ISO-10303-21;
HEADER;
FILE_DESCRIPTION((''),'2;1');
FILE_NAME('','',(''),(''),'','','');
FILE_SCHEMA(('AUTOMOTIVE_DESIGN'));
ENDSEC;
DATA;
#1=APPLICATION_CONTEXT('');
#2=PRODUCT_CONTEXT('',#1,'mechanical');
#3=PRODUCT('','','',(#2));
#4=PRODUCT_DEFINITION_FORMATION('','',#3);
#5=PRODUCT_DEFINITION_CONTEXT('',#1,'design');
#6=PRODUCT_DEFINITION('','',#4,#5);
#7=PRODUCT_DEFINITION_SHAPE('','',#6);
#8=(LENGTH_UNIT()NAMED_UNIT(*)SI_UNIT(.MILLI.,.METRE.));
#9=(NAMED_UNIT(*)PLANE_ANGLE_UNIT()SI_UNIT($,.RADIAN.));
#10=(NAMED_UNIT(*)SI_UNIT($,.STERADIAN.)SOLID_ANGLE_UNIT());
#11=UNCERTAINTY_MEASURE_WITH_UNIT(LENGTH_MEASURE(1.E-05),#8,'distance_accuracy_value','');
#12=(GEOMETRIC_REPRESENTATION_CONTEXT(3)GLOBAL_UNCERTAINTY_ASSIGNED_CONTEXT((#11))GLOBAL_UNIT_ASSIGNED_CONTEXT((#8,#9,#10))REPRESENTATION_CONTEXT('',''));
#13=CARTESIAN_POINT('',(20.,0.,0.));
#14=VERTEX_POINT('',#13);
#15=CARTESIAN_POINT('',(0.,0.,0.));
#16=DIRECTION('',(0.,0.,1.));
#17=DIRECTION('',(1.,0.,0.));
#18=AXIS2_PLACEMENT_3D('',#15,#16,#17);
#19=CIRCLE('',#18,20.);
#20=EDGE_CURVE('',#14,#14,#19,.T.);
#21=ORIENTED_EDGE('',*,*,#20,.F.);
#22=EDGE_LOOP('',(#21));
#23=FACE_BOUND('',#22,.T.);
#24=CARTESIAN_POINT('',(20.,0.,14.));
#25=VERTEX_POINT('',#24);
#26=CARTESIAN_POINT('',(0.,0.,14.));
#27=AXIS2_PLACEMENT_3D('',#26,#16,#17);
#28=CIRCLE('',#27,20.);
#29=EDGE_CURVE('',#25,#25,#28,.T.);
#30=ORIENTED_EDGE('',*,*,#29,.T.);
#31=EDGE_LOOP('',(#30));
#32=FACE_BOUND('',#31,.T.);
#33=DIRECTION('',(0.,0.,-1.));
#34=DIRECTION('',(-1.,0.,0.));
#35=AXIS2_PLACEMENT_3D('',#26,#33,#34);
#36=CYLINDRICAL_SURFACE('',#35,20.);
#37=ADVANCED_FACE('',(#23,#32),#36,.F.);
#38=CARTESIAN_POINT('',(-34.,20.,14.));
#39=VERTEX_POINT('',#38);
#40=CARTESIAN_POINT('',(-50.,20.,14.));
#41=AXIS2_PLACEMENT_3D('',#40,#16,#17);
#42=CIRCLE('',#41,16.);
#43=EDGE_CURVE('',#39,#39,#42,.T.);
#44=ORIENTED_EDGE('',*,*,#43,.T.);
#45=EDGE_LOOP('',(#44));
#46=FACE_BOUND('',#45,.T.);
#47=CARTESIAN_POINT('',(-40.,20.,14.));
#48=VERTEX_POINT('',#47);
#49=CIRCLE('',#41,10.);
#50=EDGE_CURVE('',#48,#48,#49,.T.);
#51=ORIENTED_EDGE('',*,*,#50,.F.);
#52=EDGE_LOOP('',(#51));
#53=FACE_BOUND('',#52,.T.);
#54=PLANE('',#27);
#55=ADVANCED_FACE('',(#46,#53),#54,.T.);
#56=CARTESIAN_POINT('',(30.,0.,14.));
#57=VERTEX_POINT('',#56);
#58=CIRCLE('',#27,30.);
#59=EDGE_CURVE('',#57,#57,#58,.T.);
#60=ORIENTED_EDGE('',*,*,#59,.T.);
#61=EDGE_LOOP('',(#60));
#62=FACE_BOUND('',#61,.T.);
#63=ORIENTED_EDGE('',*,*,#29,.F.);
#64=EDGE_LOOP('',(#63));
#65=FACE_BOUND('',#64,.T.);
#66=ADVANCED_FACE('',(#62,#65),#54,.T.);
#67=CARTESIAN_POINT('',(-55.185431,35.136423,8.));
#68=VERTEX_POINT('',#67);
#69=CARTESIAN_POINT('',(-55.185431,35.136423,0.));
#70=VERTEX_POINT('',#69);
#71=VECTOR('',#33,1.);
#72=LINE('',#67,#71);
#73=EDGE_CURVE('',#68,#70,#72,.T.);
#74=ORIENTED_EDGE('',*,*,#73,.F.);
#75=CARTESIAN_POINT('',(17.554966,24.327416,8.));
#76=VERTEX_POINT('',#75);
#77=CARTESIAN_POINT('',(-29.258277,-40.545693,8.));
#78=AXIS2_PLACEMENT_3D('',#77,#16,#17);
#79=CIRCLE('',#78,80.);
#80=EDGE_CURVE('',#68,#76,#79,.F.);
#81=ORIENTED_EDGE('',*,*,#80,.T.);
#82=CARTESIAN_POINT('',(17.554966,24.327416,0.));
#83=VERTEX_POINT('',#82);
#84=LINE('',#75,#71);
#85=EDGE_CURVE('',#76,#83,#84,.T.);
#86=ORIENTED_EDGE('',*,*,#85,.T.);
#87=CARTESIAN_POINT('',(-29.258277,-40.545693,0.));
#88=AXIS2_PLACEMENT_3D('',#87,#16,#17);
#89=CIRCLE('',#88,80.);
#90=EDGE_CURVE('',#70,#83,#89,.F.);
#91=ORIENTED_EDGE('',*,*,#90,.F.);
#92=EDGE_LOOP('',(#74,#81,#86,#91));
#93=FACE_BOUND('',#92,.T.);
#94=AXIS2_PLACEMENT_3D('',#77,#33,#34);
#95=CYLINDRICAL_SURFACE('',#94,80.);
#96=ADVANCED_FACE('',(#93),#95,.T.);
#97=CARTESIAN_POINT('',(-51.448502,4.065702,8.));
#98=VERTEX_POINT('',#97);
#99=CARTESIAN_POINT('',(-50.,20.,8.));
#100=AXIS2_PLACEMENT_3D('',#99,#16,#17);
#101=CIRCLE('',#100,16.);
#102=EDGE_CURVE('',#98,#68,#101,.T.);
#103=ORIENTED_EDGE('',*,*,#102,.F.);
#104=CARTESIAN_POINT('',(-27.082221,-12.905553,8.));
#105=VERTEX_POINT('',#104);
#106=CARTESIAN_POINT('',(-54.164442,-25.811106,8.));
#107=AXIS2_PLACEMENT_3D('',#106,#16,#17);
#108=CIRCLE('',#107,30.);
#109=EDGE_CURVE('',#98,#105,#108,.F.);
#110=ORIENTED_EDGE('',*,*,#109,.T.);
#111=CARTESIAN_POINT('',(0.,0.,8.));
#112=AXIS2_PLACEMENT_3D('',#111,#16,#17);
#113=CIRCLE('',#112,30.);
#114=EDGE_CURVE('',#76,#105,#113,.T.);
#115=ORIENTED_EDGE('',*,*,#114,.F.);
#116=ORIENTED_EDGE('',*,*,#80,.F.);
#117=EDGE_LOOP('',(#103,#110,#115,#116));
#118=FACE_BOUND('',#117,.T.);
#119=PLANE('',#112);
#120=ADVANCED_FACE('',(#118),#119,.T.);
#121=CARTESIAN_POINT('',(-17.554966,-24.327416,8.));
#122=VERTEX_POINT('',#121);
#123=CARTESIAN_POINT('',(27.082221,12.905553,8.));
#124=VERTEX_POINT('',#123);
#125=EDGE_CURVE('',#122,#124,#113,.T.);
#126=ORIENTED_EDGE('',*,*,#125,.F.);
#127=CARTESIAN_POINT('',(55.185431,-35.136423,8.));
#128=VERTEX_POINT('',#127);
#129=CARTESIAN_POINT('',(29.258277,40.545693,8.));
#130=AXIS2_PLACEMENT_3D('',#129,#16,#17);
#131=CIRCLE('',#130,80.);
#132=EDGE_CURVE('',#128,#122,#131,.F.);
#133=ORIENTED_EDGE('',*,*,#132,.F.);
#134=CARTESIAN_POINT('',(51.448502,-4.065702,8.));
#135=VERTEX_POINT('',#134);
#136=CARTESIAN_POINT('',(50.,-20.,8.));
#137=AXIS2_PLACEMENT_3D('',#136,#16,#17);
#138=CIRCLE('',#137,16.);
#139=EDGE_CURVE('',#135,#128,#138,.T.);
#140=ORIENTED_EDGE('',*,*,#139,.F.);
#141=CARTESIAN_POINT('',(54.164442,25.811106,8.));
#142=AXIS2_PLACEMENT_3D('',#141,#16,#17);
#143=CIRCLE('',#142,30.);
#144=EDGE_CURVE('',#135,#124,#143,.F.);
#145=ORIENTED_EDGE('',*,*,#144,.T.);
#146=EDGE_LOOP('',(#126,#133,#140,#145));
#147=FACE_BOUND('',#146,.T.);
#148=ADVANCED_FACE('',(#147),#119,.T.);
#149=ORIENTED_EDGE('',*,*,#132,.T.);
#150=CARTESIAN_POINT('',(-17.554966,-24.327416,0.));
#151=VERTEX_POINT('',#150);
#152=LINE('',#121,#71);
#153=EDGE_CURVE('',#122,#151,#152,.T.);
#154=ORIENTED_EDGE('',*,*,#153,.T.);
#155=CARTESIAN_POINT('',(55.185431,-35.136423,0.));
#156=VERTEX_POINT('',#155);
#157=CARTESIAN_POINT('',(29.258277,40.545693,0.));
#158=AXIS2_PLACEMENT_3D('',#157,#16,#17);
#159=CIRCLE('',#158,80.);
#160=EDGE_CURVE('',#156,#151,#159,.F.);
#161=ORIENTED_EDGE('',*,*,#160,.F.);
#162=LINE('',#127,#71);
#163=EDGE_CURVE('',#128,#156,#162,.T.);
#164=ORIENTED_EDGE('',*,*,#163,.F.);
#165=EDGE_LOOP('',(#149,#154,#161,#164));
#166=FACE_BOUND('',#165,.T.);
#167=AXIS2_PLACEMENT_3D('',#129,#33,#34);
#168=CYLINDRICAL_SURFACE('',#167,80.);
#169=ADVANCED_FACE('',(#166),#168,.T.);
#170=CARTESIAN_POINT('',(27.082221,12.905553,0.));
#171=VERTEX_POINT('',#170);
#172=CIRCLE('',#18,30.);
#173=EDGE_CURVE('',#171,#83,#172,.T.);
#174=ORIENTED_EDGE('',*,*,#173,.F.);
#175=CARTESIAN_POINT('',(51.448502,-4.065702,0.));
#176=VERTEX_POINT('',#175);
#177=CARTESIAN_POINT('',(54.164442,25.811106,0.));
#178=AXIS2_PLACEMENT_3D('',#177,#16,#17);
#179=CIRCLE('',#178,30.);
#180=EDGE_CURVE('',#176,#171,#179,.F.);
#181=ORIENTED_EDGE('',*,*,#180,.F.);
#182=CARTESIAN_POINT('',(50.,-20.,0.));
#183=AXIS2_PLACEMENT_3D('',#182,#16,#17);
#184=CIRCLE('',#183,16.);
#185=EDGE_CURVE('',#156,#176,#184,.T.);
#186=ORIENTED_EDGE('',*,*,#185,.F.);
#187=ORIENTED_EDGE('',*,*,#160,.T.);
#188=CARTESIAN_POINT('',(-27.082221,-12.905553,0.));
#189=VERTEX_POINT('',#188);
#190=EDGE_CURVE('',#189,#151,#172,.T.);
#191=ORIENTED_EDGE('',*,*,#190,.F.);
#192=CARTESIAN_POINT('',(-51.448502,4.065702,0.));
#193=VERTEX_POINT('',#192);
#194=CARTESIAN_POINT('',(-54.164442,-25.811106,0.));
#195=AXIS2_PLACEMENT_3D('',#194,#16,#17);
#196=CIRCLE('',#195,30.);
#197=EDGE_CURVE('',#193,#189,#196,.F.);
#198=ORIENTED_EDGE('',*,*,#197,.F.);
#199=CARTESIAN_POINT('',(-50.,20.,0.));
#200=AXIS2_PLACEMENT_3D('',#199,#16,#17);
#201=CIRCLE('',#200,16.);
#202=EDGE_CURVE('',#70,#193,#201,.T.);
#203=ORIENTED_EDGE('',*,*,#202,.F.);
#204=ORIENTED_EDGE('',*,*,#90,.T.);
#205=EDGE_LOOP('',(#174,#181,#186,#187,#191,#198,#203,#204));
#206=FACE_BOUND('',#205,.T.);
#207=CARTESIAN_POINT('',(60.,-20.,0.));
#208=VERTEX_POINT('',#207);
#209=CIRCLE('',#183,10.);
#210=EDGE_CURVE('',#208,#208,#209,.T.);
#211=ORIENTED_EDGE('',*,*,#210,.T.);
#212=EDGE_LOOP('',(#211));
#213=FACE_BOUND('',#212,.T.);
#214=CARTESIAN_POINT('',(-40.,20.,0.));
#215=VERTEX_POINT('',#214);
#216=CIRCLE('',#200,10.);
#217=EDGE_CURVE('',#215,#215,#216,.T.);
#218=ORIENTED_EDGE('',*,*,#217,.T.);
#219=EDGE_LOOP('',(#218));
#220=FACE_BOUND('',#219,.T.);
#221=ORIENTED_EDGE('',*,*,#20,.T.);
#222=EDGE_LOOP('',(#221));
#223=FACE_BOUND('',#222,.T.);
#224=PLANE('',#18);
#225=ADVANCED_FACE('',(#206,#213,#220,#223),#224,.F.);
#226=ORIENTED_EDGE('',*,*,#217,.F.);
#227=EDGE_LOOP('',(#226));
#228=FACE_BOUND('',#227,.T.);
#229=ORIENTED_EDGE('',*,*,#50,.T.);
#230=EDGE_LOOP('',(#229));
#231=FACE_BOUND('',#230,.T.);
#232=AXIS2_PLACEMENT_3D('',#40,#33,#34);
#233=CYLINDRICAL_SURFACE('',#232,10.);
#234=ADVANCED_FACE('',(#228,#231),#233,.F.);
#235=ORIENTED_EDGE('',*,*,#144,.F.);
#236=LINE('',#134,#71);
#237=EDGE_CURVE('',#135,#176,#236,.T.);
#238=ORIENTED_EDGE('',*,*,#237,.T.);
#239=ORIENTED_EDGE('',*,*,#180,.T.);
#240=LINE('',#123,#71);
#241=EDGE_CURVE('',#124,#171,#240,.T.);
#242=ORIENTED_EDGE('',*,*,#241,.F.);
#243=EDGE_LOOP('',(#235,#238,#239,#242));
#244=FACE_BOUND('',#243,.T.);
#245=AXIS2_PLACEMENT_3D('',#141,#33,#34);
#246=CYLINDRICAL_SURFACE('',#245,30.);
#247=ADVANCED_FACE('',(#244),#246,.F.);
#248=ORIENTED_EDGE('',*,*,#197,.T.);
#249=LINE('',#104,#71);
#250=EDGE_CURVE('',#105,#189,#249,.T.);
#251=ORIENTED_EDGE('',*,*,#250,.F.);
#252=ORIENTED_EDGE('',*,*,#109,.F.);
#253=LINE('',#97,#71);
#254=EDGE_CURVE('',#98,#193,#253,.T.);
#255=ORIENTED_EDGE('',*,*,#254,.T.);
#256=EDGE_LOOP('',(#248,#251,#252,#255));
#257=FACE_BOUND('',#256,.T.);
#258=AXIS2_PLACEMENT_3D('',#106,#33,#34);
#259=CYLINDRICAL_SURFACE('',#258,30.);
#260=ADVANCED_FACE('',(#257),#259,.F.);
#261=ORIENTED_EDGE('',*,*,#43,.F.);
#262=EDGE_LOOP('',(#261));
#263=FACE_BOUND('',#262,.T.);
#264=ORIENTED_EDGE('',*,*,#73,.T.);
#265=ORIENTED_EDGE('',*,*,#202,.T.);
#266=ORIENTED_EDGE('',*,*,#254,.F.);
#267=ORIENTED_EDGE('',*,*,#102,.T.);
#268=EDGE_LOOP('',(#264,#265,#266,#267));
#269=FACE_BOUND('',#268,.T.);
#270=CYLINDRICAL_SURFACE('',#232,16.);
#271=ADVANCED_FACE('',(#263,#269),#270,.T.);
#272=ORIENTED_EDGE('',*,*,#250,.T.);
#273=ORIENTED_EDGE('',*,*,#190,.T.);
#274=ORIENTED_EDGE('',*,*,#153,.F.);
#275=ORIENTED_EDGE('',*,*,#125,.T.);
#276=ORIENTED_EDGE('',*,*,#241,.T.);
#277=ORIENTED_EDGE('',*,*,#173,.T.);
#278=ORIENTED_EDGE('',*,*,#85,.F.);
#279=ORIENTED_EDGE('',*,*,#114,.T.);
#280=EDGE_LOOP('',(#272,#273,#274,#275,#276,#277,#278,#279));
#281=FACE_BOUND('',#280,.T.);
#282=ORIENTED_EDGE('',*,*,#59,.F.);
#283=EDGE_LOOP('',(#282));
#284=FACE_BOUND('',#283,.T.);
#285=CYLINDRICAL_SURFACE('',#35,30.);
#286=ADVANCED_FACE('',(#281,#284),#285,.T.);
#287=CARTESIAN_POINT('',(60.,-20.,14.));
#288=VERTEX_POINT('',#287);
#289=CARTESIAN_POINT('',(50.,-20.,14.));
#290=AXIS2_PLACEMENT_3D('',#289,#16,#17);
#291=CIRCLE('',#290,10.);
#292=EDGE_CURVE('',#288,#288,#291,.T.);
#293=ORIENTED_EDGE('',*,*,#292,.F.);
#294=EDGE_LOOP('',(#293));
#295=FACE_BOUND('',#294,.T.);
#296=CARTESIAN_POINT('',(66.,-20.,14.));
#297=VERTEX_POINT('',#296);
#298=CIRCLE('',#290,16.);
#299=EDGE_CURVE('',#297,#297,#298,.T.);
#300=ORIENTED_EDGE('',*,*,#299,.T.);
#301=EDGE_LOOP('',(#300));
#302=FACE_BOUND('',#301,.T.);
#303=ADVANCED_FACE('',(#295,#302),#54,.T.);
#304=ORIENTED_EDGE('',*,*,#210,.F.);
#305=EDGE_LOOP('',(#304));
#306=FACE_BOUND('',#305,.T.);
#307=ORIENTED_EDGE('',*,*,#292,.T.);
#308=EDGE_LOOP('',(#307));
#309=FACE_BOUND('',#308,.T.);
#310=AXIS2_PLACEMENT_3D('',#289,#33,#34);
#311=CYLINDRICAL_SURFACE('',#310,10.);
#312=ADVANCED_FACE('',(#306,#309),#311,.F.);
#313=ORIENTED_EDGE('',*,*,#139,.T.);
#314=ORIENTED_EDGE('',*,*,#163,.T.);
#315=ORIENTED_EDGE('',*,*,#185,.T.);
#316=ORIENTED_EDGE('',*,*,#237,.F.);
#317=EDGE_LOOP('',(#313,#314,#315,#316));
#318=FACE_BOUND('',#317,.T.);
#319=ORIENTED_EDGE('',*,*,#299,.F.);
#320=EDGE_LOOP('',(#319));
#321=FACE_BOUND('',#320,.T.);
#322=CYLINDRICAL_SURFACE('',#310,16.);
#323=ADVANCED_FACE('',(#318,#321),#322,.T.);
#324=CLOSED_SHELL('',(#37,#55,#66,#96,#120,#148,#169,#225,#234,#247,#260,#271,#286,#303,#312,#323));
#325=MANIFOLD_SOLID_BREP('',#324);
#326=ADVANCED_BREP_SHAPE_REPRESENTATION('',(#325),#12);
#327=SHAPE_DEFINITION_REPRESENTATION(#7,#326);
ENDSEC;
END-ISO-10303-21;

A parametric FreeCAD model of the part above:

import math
import FreeCAD as App
import Part
import Sketcher

doc = App.newDocument("Part")
params = doc.addObject("Spreadsheet::Sheet", "Params")
for row, (alias, value) in enumerate([
    ("sketch1_diameter", "32 mm"),
    ("sketch1_diameter2", "20 mm"),
    ("pad1_length", "14 mm"),
    ("sketch2_diameter", "60 mm"),
    ("sketch2_diameter2", "40 mm"),
    ("pad2_length", "14 mm"),
    ("sketch3_diameter", "32 mm"),
    ("sketch3_diameter2", "20 mm"),
    ("pad3_length", "14 mm"),
    ("sketch4_radius", "30 mm"),
    ("sketch4_radius2", "80 mm"),
    ("sketch4_radius3", "16 mm"),
    ("pad4_length", "8 mm"),
], start=1):
    params.set(f"A{row}", alias)
    params.set(f"B{row}", "=" + value)
    params.setAlias(f"B{row}", alias)

body = doc.addObject("PartDesign::Body", "Body")

# Sketch on XY plane
sketch1 = body.newObject("Sketcher::SketchObject", "Sketch")
sketch1.AttachmentSupport = (doc.getObject("XY_Plane"), [""])
sketch1.MapMode = "FlatFace"
sketch1.addGeometry(Part.Circle(App.Vector(-50, 20, 0), App.Vector(0, 0, 1), 16), False)
sketch1.addGeometry(Part.Circle(App.Vector(-50, 20, 0), App.Vector(0, 0, 1), 10), False)
sketch1.addConstraint(Sketcher.Constraint("Coincident", 1, 3, 0, 3))
sketch1.addConstraint(Sketcher.Constraint("Diameter", 0, 32.0))
sketch1.addConstraint(Sketcher.Constraint("Diameter", 1, 20.0))
sketch1.addConstraint(Sketcher.Constraint("DistanceX", 0, 3, -1, 1, 50.0))
sketch1.addConstraint(Sketcher.Constraint("DistanceY", -1, 1, 0, 3, 20.0))
sketch1.setExpression("Constraints[1]", "Params.sketch1_diameter")
sketch1.setExpression("Constraints[2]", "Params.sketch1_diameter2")
pad1 = body.newObject("PartDesign::Pad", "Pad")
pad1.Profile = sketch1
pad1.setExpression("Length", "Params.pad1_length")
body2 = doc.addObject("PartDesign::Body", "Body001")

# Sketch on XY plane
sketch2 = body2.newObject("Sketcher::SketchObject", "Sketch001")
sketch2.AttachmentSupport = (doc.getObject("XY_Plane001"), [""])
sketch2.MapMode = "FlatFace"
sketch2.addGeometry(Part.Circle(App.Vector(0, 0, 0), App.Vector(0, 0, 1), 30), False)
sketch2.addGeometry(Part.Circle(App.Vector(0, 0, 0), App.Vector(0, 0, 1), 20), False)
sketch2.addConstraint(Sketcher.Constraint("Coincident", 0, 3, -1, 1))
sketch2.addConstraint(Sketcher.Constraint("Coincident", 1, 3, -1, 1))
sketch2.addConstraint(Sketcher.Constraint("Diameter", 0, 60.0))
sketch2.addConstraint(Sketcher.Constraint("Diameter", 1, 40.0))
sketch2.setExpression("Constraints[2]", "Params.sketch2_diameter")
sketch2.setExpression("Constraints[3]", "Params.sketch2_diameter2")
pad2 = body2.newObject("PartDesign::Pad", "Pad001")
pad2.Profile = sketch2
pad2.setExpression("Length", "Params.pad2_length")
body3 = doc.addObject("PartDesign::Body", "Body002")

# Sketch on XY plane
sketch3 = body3.newObject("Sketcher::SketchObject", "Sketch002")
sketch3.AttachmentSupport = (doc.getObject("XY_Plane002"), [""])
sketch3.MapMode = "FlatFace"
sketch3.addGeometry(Part.Circle(App.Vector(50, -20, 0), App.Vector(0, 0, 1), 16), False)
sketch3.addGeometry(Part.Circle(App.Vector(50, -20, 0), App.Vector(0, 0, 1), 10), False)
sketch3.addConstraint(Sketcher.Constraint("Coincident", 1, 3, 0, 3))
sketch3.addConstraint(Sketcher.Constraint("Diameter", 0, 32.0))
sketch3.addConstraint(Sketcher.Constraint("Diameter", 1, 20.0))
sketch3.addConstraint(Sketcher.Constraint("DistanceX", -1, 1, 0, 3, 50.0))
sketch3.addConstraint(Sketcher.Constraint("DistanceY", 0, 3, -1, 1, 20.0))
sketch3.setExpression("Constraints[1]", "Params.sketch3_diameter")
sketch3.setExpression("Constraints[2]", "Params.sketch3_diameter2")
pad3 = body3.newObject("PartDesign::Pad", "Pad002")
pad3.Profile = sketch3
pad3.setExpression("Length", "Params.pad3_length")
body.AllowCompound = True
doc.recompute()

boolean = body.newObject("PartDesign::Boolean", "Boolean")
boolean.Type = "Fuse"
boolean.addObjects([body2])
doc.recompute()

boolean2 = body.newObject("PartDesign::Boolean", "Boolean001")
boolean2.Type = "Fuse"
boolean2.addObjects([body3])

# Sketch on XY plane
sketch4 = body.newObject("Sketcher::SketchObject", "Sketch003")
sketch4.AttachmentSupport = (doc.getObject("XY_Plane"), [""])
sketch4.MapMode = "FlatFace"
sketch4.addGeometry(Part.ArcOfCircle(Part.Circle(App.Vector(0, 0, 0), App.Vector(0, 0, 1), 30), math.radians(54.185314), math.radians(205.479307)), False)
sketch4.addGeometry(Part.ArcOfCircle(Part.Circle(App.Vector(-29.258277, -40.545693, 0), App.Vector(0, 0, 1), 80), math.radians(54.185314), math.radians(108.910417)), False)
sketch4.addGeometry(Part.ArcOfCircle(Part.Circle(App.Vector(-50, 20, 0), App.Vector(0, 0, 1), 16), math.radians(0), math.radians(108.910417)), False)
sketch4.addGeometry(Part.ArcOfCircle(Part.Circle(App.Vector(-50, 20, 0), App.Vector(0, 0, 1), 16), math.radians(-95.194176), math.radians(0)), False)
sketch4.addGeometry(Part.ArcOfCircle(Part.Circle(App.Vector(-54.164442, -25.811106, 0), App.Vector(0, 0, 1), 30), math.radians(25.479307), math.radians(84.805824)), False)
sketch4.addGeometry(Part.ArcOfCircle(Part.Circle(App.Vector(0, 0, 0), App.Vector(0, 0, 1), 30), math.radians(0), math.radians(25.479307)), False)
sketch4.addGeometry(Part.ArcOfCircle(Part.Circle(App.Vector(0, 0, 0), App.Vector(0, 0, 1), 30), math.radians(-125.814686), math.radians(0)), False)
sketch4.addGeometry(Part.ArcOfCircle(Part.Circle(App.Vector(29.258277, 40.545693, 0), App.Vector(0, 0, 1), 80), math.radians(-125.814686), math.radians(-71.089583)), False)
sketch4.addGeometry(Part.ArcOfCircle(Part.Circle(App.Vector(50, -20, 0), App.Vector(0, 0, 1), 16), math.radians(84.805824), math.radians(288.910417)), False)
sketch4.addGeometry(Part.ArcOfCircle(Part.Circle(App.Vector(54.164442, 25.811106, 0), App.Vector(0, 0, 1), 30), math.radians(-154.520693), math.radians(-95.194176)), False)
sketch4.addConstraint(Sketcher.Constraint("Tangent", 0, 1, 1, 1))
sketch4.addConstraint(Sketcher.Constraint("Tangent", 1, 2, 2, 2))
sketch4.addConstraint(Sketcher.Constraint("Tangent", 2, 1, 3, 2))
sketch4.addConstraint(Sketcher.Constraint("Tangent", 3, 1, 4, 2))
sketch4.addConstraint(Sketcher.Constraint("Tangent", 4, 1, 0, 2))
sketch4.addConstraint(Sketcher.Constraint("Tangent", 5, 1, 6, 2))
sketch4.addConstraint(Sketcher.Constraint("Tangent", 6, 1, 7, 1))
sketch4.addConstraint(Sketcher.Constraint("Tangent", 7, 2, 8, 2))
sketch4.addConstraint(Sketcher.Constraint("Tangent", 8, 1, 9, 2))
sketch4.addConstraint(Sketcher.Constraint("Tangent", 9, 1, 5, 2))
sketch4.addConstraint(Sketcher.Constraint("Coincident", 0, 3, -1, 1))
sketch4.addConstraint(Sketcher.Constraint("Coincident", 5, 3, -1, 1))
sketch4.addConstraint(Sketcher.Constraint("Equal", 2, 3))
sketch4.addConstraint(Sketcher.Constraint("Equal", 0, 4))
sketch4.addConstraint(Sketcher.Constraint("Equal", 4, 5))
sketch4.addConstraint(Sketcher.Constraint("Equal", 5, 6))
sketch4.addConstraint(Sketcher.Constraint("Equal", 1, 7))
sketch4.addConstraint(Sketcher.Constraint("Equal", 3, 8))
sketch4.addConstraint(Sketcher.Constraint("Equal", 6, 9))
sketch4.addConstraint(Sketcher.Constraint("Symmetric", 2, 3, 8, 3, -1, 1))
sketch4.addConstraint(Sketcher.Constraint("PointOnObject", 5, 1, -1))
sketch4.addConstraint(Sketcher.Constraint("Horizontal", 3, 3, 2, 1))
sketch4.addConstraint(Sketcher.Constraint("Radius", 0, 30.0))
sketch4.addConstraint(Sketcher.Constraint("Radius", 1, 80.0))
sketch4.addConstraint(Sketcher.Constraint("Radius", 2, 16.0))
sketch4.addConstraint(Sketcher.Constraint("DistanceX", 2, 3, -1, 1, 50.0))
sketch4.addConstraint(Sketcher.Constraint("DistanceY", -1, 1, 2, 3, 20.0))
sketch4.setExpression("Constraints[22]", "Params.sketch4_radius")
sketch4.setExpression("Constraints[23]", "Params.sketch4_radius2")
sketch4.setExpression("Constraints[24]", "Params.sketch4_radius3")
pad4 = body.newObject("PartDesign::Pad", "Pad003")
pad4.Profile = sketch4
pad4.setExpression("Length", "Params.pad4_length")

doc.recompute()
